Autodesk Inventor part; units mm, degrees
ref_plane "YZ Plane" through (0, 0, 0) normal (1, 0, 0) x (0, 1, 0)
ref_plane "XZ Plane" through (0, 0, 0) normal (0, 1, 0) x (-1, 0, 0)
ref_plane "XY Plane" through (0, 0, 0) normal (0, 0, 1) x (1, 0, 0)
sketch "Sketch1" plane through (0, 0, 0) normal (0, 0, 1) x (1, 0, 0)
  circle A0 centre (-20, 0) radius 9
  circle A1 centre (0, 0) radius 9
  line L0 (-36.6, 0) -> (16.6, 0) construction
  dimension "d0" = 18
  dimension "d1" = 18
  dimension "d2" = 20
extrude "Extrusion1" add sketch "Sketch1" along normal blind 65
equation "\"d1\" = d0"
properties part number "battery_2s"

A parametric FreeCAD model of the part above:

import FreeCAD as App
import Part
import Sketcher

V = App.Vector

doc = App.newDocument("Part")
params = doc.addObject("Spreadsheet::Sheet", "Params")
for row, (alias, value) in enumerate([
    ("sketch1_diameter", "18 mm"),
    ("pad1_length", "65 mm"),
], start=1):
    params.set(f"A{row}", alias)
    params.set(f"B{row}", "=" + value)
    params.setAlias(f"B{row}", alias)

body = doc.addObject("PartDesign::Body", "Body")
body.AllowCompound = True

# Sketch on XY plane
sketch1 = body.newObject("Sketcher::SketchObject", "Sketch")
sketch1.AttachmentSupport = (doc.getObject("XY_Plane"), [""])
sketch1.MapMode = "FlatFace"
sketch1.addGeometry([
    Part.Circle(V(-20, 0, 0), V(0, 0, 1), 9),
    Part.Circle(V(0, 0, 0), V(0, 0, 1), 9),
], False)
sketch1.addConstraint([
    Sketcher.Constraint("Coincident", 1, 3, -1, 1),
    Sketcher.Constraint("Equal", 0, 1),
    Sketcher.Constraint("PointOnObject", 0, 3, -1),
    Sketcher.Constraint("Diameter", 0, 18.0),
    Sketcher.Constraint("DistanceX", 0, 3, -1, 1, 20.0),
])
sketch1.setExpression("Constraints[3]", "Params.sketch1_diameter")
pad1 = body.newObject("PartDesign::Pad", "Pad")
pad1.Profile = sketch1
pad1.setExpression("Length", "Params.pad1_length")

doc.recompute()
